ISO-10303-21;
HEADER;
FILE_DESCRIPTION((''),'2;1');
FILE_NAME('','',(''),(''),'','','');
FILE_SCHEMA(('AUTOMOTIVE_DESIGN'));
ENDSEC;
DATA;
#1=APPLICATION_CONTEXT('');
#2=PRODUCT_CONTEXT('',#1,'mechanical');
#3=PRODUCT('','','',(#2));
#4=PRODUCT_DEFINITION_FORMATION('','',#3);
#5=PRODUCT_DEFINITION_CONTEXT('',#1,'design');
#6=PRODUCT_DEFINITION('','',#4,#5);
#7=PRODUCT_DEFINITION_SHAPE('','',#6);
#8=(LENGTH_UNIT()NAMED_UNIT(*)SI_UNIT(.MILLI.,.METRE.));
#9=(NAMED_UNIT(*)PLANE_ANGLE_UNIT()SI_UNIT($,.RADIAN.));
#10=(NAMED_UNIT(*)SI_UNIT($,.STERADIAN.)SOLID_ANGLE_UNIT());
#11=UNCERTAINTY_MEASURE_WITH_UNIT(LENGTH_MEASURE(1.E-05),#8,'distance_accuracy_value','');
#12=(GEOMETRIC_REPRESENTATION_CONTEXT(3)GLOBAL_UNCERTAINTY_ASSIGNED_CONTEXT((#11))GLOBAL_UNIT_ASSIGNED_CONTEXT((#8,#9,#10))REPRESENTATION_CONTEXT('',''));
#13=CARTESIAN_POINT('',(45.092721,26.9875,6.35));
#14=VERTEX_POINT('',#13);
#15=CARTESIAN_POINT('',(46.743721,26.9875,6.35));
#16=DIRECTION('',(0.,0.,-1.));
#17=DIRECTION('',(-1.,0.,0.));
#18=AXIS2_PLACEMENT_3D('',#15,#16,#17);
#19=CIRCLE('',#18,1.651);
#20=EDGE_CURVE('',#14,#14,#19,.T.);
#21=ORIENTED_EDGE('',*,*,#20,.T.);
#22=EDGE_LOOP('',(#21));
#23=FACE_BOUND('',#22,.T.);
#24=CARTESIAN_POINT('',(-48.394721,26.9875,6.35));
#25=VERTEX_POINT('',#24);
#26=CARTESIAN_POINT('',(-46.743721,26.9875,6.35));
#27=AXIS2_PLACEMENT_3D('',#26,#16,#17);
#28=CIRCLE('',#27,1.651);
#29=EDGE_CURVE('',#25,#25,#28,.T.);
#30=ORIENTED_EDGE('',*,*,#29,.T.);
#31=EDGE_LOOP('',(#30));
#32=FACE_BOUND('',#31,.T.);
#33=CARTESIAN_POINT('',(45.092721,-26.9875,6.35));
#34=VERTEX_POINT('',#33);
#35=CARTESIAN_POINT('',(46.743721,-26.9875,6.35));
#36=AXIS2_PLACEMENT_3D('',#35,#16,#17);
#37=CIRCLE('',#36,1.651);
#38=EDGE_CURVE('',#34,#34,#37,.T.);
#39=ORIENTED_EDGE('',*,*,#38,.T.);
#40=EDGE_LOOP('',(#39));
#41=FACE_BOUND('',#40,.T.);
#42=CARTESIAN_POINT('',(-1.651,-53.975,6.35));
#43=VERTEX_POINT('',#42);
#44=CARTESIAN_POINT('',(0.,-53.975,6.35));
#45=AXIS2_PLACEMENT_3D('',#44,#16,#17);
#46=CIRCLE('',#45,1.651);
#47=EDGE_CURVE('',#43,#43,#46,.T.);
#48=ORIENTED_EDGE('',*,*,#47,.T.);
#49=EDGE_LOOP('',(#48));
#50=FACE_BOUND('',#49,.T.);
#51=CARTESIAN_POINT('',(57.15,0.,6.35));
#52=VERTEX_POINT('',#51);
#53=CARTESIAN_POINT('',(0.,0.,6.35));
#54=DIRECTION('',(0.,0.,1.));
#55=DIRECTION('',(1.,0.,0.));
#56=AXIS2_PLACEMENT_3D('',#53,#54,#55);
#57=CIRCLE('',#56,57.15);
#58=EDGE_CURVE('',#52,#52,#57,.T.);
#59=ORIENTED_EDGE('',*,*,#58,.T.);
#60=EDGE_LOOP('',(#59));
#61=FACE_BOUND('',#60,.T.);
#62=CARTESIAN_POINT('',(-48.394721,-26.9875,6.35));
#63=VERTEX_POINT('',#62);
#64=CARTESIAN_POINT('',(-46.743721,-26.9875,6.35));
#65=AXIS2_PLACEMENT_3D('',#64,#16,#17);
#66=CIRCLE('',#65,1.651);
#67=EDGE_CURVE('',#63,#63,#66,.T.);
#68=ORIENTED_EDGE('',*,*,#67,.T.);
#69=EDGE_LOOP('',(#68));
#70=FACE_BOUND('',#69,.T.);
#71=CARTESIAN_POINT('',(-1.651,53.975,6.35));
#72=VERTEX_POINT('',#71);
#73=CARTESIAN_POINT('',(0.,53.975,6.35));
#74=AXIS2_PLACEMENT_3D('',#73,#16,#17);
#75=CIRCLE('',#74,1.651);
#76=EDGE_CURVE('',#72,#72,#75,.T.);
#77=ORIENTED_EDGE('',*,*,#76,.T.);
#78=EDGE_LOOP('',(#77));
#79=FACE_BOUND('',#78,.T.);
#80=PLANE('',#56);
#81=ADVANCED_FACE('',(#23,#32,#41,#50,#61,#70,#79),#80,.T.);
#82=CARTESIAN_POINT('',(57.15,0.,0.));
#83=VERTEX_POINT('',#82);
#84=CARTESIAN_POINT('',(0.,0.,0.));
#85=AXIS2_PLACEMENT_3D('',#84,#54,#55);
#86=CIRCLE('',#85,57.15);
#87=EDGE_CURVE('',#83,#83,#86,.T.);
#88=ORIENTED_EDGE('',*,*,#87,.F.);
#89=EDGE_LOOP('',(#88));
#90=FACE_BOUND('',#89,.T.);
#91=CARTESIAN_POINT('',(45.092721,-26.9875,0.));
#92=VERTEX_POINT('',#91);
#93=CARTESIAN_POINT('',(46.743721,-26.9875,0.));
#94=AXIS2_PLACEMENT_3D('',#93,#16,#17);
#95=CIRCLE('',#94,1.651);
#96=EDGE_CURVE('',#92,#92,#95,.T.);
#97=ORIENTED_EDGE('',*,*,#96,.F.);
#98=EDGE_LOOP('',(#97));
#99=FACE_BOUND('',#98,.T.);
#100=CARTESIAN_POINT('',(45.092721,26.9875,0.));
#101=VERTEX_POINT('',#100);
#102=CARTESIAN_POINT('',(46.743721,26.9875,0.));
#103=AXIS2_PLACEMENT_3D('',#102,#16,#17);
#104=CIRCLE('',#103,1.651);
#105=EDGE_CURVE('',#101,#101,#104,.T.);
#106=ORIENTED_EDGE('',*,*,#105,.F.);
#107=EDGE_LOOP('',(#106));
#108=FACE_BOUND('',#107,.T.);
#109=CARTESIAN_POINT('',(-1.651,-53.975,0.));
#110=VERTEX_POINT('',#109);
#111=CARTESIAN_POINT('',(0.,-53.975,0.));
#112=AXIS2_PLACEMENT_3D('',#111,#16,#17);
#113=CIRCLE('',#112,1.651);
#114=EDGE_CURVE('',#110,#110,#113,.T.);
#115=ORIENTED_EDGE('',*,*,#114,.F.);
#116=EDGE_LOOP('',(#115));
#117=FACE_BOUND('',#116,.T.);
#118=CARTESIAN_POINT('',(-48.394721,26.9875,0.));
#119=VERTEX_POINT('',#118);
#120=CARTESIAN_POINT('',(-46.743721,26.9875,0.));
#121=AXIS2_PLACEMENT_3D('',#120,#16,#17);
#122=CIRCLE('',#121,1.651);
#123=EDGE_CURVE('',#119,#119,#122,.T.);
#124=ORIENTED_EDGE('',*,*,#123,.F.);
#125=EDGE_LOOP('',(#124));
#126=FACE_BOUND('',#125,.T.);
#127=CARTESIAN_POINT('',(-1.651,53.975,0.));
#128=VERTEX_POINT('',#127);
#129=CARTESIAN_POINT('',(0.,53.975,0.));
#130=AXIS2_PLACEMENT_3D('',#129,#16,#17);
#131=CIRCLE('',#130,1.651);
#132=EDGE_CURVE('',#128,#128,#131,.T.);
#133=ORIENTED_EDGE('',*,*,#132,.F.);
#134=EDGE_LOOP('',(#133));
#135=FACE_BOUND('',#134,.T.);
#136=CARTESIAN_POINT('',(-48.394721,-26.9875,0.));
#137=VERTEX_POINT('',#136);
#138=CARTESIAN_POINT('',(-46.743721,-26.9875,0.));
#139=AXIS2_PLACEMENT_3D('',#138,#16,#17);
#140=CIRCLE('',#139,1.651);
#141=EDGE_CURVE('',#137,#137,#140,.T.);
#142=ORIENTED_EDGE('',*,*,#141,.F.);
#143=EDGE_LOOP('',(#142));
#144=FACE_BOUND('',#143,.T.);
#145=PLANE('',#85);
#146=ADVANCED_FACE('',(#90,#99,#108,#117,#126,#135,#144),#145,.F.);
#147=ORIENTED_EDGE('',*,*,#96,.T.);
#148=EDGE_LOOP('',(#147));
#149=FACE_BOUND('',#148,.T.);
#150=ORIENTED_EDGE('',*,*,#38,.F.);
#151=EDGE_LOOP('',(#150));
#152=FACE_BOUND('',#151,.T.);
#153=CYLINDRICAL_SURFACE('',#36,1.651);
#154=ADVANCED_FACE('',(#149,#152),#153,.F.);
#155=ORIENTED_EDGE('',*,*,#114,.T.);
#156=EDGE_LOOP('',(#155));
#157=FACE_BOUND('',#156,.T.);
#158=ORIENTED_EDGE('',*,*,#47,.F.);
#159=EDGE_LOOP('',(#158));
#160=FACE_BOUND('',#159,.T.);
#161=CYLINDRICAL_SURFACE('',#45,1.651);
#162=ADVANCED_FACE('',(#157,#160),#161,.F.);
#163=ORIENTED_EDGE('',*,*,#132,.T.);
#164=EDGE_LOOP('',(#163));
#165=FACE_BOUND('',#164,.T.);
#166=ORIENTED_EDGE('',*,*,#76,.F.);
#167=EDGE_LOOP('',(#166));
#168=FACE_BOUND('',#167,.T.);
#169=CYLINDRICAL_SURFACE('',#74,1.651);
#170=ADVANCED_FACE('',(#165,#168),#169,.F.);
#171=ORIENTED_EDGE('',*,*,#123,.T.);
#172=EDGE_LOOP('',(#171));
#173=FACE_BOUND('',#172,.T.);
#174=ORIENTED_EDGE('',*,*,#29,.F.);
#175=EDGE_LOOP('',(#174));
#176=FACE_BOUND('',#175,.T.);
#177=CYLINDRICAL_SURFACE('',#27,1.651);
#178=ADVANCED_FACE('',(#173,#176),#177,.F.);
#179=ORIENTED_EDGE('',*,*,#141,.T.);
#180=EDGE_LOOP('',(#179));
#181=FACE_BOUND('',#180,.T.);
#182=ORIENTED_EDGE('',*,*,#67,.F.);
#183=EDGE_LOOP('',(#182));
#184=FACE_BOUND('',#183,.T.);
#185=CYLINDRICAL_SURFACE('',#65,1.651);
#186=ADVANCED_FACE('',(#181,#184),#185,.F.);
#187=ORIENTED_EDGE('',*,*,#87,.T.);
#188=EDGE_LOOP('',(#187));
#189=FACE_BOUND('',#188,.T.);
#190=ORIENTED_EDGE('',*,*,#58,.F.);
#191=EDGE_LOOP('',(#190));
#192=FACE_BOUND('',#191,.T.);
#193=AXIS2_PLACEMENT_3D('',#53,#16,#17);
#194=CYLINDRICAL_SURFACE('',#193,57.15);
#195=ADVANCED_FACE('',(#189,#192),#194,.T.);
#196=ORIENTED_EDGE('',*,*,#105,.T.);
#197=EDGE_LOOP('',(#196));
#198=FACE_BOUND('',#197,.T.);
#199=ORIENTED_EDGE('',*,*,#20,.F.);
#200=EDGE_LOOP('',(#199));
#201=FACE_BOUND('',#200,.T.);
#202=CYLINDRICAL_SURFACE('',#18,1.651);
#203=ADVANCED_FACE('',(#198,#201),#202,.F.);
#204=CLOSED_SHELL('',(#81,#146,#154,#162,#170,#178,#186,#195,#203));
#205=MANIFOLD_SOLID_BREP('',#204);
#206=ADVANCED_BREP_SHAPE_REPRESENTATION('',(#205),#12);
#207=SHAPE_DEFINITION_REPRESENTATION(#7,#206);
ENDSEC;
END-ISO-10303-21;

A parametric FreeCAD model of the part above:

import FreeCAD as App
import Part
import Sketcher

V = App.Vector
Q = App.Units.Quantity

doc = App.newDocument("Part")
body = doc.addObject("PartDesign::Body", "Body")

# Sketch on XY plane
sketch1 = body.newObject("Sketcher::SketchObject", "Sketch")
sketch1.AttachmentSupport = (doc.getObject("XY_Plane"), [""])
sketch1.MapMode = "FlatFace"
sketch1.addGeometry(Part.Circle(V(0, 0, 0), V(0, 0, 1), 57), False)
sketch1.addConstraint([
    Sketcher.Constraint("Coincident", 0, 3, -1, 1),
    Sketcher.Constraint("Diameter", 0, Q("4.5 in")),
])
pad1 = body.newObject("PartDesign::Pad", "Pad")
pad1.Profile = sketch1
pad1.Length = Q("0.25 in")

# Sketch on XY plane
sketch2 = body.newObject("Sketcher::SketchObject", "Sketch001")
sketch2.AttachmentSupport = (doc.getObject("XY_Plane"), [""])
sketch2.MapMode = "FlatFace"
sketch2.addGeometry([
    Part.Circle(V(46.7, 27, 0), V(0, 0, 1), 1.7),  # 0
    Part.Circle(V(0, 54, 0), V(0, 0, 1), 1.7),  # 1
    Part.Circle(V(-46.7, 27, 0), V(0, 0, 1), 1.7),  # 2
    Part.Circle(V(-46.7, -27, 0), V(0, 0, 1), 1.7),  # 3
    Part.Circle(V(0, -54, 0), V(0, 0, 1), 1.7),  # 4
    Part.Circle(V(46.7, -27, 0), V(0, 0, 1), 1.7),  # 5
], False)
sketch2.addConstraint([
    Sketcher.Constraint("Equal", 0, 1),
    Sketcher.Constraint("Equal", 1, 2),
    Sketcher.Constraint("Equal", 2, 3),
    Sketcher.Constraint("Equal", 3, 4),
    Sketcher.Constraint("Equal", 4, 5),
    Sketcher.Constraint("Symmetric", 0, 3, 3, 3, -1, 1),
    Sketcher.Constraint("Symmetric", 1, 3, 4, 3, -1, 1),
    Sketcher.Constraint("Symmetric", 2, 3, 5, 3, -1, 1),
    Sketcher.Constraint("Symmetric", 0, 3, 2, 3, -2),
    Sketcher.Constraint("PointOnObject", 1, 3, -2),
    Sketcher.Constraint("Diameter", 0, Q("0.13 in")),
    Sketcher.Constraint("DistanceY", 4, 3, 1, 3, Q("4.25 in")),
    Sketcher.Constraint("DistanceY", -1, 1, 0, 3, Q("1.0625 in")),
    Sketcher.Constraint("DistanceX", -1, 1, 0, 3, 46.743721),
])
pocket1 = body.newObject("PartDesign::Pocket", "Pocket")
pocket1.Profile = sketch2
pocket1.Type = "ThroughAll"
pocket1.Reversed = True

doc.recompute()
